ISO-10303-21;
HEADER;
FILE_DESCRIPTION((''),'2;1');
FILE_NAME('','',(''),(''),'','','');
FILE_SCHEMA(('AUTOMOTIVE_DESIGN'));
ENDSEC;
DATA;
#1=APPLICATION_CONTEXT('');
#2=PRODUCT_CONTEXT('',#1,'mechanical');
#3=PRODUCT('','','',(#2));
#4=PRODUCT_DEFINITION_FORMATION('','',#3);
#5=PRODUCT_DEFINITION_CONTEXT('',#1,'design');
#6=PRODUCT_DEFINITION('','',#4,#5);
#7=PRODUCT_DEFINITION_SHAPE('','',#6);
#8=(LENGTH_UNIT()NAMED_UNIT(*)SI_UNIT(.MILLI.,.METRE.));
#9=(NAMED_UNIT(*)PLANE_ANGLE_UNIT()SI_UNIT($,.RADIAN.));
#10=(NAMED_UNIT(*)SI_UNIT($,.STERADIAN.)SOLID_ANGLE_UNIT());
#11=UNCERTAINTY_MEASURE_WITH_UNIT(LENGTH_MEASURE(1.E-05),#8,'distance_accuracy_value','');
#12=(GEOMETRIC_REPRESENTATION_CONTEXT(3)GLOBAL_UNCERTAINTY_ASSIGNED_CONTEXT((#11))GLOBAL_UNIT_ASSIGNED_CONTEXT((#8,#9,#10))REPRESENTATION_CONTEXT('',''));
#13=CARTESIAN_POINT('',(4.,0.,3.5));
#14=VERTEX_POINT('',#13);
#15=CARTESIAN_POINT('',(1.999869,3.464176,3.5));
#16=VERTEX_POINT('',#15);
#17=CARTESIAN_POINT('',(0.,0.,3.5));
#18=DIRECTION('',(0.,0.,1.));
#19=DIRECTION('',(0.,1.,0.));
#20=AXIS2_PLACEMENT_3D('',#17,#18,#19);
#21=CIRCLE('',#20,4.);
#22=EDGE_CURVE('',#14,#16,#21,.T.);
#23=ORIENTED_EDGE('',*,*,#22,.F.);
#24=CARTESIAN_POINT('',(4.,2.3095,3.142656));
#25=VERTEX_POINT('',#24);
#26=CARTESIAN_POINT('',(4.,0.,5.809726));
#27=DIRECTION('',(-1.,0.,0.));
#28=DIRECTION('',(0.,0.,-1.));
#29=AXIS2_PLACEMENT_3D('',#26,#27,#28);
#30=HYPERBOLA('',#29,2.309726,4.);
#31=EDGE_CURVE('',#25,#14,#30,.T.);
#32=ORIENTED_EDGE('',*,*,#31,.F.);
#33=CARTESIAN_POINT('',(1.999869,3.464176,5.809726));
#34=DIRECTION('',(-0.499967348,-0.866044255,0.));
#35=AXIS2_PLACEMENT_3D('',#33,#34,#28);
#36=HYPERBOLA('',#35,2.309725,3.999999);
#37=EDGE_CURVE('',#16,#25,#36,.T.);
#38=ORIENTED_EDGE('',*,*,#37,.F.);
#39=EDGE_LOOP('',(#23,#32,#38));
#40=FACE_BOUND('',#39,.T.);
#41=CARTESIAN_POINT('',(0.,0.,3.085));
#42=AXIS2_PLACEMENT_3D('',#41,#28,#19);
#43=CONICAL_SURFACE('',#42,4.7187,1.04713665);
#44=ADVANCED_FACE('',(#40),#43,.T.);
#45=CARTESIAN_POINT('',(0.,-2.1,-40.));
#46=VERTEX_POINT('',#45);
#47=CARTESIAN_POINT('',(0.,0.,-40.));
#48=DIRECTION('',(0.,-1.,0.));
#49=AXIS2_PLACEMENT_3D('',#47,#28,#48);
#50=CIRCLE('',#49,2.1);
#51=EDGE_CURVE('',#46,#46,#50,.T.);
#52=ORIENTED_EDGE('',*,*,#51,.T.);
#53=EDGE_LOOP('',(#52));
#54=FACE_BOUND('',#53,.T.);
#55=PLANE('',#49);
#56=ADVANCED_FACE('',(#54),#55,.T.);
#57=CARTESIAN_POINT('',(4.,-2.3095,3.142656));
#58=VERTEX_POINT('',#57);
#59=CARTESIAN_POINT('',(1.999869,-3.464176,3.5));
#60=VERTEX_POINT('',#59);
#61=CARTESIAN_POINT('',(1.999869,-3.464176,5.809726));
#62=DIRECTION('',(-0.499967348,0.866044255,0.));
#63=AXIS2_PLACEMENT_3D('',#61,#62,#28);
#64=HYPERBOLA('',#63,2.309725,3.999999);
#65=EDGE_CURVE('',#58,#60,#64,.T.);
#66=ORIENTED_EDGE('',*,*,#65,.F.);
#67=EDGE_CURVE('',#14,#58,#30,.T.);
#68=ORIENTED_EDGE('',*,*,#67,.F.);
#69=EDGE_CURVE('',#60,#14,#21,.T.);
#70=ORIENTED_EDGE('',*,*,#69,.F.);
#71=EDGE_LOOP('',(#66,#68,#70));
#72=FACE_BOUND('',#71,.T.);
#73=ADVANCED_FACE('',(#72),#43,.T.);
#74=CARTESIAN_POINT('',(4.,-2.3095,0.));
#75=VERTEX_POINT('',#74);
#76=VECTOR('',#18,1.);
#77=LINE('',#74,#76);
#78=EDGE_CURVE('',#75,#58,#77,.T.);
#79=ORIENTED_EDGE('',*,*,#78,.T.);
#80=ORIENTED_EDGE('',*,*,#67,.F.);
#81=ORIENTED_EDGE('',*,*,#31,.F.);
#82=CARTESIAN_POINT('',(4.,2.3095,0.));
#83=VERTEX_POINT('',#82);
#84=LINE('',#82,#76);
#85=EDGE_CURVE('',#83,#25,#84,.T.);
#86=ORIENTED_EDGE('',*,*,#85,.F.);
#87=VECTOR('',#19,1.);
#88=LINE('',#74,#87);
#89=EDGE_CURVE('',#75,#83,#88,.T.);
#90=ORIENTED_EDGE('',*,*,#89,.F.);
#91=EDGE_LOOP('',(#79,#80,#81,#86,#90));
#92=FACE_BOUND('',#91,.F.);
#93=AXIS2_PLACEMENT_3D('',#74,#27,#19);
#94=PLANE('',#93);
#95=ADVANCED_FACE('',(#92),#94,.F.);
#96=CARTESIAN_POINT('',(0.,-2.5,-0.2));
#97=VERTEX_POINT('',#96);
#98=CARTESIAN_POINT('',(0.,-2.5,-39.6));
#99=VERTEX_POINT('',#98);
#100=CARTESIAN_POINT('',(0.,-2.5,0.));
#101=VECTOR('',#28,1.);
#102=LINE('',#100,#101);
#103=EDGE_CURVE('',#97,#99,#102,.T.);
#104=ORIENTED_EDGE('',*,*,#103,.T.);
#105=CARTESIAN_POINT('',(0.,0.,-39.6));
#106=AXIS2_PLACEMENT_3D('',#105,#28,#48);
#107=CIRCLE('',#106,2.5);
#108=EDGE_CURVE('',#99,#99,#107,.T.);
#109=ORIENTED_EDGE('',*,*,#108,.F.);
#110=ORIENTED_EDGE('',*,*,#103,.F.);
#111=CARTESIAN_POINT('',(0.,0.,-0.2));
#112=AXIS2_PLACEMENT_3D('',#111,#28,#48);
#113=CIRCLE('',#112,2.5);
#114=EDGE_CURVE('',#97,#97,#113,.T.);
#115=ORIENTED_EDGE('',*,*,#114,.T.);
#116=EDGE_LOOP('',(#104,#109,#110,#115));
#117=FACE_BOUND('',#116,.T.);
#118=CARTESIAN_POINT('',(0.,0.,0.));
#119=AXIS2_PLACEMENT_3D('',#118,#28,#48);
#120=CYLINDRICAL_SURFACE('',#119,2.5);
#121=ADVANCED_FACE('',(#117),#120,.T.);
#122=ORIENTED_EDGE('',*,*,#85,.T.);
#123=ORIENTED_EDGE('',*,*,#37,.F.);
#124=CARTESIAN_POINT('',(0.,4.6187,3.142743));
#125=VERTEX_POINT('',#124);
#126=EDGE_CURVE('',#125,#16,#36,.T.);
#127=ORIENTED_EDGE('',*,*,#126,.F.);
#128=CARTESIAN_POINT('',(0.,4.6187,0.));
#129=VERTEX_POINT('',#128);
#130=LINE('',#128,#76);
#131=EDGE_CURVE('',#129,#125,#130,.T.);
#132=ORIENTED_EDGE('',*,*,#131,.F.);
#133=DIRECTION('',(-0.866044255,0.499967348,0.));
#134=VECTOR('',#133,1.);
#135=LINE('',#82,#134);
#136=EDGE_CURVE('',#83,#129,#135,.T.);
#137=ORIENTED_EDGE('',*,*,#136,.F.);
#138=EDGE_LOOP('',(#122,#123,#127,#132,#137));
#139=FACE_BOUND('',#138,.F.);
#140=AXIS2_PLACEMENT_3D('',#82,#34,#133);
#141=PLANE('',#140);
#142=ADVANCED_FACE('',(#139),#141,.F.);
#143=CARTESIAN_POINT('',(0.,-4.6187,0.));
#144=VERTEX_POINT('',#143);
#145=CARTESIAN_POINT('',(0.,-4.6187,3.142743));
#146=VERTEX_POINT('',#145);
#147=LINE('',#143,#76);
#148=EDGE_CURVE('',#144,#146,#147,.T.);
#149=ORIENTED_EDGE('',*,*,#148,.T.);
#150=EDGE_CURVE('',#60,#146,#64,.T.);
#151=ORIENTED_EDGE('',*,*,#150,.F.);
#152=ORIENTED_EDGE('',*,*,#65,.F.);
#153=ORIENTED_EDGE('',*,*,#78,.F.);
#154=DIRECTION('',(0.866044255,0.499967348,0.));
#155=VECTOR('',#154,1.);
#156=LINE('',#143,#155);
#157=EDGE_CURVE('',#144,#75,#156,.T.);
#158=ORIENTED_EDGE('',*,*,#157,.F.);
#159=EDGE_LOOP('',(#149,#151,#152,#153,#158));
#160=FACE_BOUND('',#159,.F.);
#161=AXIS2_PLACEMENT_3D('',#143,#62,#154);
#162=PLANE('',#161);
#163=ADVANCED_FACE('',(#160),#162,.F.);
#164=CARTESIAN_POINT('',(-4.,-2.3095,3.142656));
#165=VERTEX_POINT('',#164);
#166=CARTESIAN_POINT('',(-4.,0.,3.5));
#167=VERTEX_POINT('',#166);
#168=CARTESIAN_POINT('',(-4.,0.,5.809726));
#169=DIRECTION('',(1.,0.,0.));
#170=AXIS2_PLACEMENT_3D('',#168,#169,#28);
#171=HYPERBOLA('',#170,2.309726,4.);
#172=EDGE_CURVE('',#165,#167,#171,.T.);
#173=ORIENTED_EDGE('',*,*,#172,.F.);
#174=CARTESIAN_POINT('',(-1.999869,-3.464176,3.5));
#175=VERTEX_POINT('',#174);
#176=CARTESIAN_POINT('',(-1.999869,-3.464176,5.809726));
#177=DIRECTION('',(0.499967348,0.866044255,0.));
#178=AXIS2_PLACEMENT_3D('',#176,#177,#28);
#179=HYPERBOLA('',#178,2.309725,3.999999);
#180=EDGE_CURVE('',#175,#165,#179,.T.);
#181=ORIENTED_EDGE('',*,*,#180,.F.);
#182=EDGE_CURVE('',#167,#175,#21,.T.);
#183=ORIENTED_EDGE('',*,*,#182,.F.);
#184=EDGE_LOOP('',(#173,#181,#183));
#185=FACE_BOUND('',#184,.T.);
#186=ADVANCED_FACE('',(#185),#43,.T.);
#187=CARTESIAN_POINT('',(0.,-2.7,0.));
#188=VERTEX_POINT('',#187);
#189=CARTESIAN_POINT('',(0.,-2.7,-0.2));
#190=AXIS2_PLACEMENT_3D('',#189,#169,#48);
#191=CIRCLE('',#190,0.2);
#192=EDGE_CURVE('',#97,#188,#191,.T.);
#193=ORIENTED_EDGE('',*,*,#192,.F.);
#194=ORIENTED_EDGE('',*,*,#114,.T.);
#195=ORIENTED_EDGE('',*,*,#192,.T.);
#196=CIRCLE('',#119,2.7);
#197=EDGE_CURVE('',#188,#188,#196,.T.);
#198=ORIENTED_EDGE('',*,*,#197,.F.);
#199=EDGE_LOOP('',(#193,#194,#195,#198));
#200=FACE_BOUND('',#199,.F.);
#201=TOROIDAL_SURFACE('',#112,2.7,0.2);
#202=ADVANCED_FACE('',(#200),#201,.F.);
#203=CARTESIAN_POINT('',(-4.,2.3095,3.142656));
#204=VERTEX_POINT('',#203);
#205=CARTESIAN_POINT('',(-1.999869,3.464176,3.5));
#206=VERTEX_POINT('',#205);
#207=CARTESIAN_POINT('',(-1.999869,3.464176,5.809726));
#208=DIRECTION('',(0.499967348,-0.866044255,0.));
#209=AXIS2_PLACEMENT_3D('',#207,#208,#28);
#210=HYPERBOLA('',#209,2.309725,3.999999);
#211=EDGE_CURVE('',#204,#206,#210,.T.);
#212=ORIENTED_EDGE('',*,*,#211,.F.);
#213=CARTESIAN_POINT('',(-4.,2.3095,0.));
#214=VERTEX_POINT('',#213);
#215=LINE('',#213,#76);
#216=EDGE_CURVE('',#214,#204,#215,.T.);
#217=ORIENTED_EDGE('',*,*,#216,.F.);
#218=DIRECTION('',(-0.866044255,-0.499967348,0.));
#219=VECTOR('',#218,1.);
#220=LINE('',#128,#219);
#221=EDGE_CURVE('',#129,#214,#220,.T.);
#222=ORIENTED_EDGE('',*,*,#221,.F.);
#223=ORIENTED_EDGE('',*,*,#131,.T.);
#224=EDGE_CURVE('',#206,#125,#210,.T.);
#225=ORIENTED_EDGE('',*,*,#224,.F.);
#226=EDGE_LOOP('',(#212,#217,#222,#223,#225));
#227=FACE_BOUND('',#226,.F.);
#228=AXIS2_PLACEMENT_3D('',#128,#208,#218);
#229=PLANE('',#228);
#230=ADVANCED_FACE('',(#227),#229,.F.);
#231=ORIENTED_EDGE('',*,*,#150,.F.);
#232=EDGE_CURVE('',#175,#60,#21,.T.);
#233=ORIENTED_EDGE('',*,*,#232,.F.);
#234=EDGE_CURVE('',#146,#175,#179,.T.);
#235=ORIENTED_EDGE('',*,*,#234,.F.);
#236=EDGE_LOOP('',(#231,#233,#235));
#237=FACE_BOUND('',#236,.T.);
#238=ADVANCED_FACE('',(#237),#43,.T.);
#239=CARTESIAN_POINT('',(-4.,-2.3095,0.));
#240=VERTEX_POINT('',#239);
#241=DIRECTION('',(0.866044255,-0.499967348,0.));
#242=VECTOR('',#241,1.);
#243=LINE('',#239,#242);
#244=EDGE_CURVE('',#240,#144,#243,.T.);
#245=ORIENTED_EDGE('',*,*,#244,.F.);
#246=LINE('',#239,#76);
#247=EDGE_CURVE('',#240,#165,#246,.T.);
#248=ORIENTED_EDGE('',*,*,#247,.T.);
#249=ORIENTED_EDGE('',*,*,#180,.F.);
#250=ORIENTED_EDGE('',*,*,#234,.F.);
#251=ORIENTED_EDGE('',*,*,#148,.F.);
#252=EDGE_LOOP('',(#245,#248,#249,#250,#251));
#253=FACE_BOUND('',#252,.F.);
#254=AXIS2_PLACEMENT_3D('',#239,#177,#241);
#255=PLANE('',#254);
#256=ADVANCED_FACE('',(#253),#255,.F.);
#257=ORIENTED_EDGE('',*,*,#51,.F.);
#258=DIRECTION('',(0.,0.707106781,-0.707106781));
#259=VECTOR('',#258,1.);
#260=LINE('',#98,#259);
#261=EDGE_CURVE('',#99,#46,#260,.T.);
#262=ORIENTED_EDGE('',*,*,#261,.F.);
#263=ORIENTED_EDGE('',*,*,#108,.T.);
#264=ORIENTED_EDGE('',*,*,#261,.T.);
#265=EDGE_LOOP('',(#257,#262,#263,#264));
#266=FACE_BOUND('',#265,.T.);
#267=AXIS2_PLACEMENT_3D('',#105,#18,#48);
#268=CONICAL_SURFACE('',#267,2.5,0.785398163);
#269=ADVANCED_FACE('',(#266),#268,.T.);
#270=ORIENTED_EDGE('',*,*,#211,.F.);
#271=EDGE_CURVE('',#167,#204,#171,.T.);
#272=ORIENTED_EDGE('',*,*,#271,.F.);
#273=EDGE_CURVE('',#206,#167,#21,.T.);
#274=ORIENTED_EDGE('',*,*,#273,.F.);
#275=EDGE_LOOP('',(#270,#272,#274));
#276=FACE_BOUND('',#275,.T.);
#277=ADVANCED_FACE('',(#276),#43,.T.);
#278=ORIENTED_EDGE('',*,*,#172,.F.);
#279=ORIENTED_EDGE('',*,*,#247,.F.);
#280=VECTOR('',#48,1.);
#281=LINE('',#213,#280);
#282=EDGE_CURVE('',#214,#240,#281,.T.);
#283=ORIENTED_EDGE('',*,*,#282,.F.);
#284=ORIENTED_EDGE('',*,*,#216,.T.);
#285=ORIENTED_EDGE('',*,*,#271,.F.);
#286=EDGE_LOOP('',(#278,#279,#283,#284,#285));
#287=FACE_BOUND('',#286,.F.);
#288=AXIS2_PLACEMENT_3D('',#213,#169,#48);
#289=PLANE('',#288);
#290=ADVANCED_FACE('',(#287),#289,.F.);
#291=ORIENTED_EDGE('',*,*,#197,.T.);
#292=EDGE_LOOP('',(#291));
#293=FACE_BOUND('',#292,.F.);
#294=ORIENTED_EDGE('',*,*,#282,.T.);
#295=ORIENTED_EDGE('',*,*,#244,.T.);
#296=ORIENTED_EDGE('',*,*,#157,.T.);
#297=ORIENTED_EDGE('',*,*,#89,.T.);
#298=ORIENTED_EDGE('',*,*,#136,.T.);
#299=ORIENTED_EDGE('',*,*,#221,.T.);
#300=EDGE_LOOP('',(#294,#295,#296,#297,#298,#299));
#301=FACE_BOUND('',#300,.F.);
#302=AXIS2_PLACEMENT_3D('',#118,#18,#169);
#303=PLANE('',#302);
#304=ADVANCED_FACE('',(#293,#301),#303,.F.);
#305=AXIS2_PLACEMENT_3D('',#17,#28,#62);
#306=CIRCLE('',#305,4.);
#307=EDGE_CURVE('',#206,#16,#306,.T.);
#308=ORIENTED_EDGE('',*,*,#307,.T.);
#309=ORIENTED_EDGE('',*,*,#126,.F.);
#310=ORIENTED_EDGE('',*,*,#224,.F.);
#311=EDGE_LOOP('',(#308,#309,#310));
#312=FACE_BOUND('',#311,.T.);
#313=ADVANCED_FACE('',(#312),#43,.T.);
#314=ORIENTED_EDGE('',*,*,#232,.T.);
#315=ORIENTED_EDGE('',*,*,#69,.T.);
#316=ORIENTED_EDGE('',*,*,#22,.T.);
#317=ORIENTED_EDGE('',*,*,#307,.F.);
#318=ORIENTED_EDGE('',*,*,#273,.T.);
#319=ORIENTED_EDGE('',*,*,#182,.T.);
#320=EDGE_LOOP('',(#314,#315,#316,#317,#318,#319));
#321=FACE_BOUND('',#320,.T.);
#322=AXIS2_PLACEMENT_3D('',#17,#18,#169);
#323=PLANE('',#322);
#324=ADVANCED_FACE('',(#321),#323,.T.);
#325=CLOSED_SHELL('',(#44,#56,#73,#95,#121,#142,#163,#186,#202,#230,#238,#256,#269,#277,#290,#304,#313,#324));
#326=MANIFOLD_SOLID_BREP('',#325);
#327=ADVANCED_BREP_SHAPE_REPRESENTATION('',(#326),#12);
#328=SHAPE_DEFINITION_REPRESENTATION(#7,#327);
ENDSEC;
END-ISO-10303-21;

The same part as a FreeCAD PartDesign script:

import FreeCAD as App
import Part
import Sketcher
Q = App.Units.Quantity


def edges_at(feature, points):
    """Names of the edges that pass closest to the given points."""
    edges = feature.Shape.Edges
    near = lambda p: min(range(len(edges)), key=lambda i: edges[i].distToShape(Part.Vertex(*p))[0])
    return sorted({f"Edge{near(p) + 1}" for p in points})

doc = App.newDocument("Part")
body = doc.addObject("PartDesign::Body", "Body")

# Sketch on XY plane
sketch1 = body.newObject("Sketcher::SketchObject", "Sketch")
sketch1.AttachmentSupport = (doc.getObject("XY_Plane"), [""])
sketch1.MapMode = "FlatFace"
sketch1.addGeometry([
    Part.LineSegment(App.Vector(0, 4.6, 0), App.Vector(-4, 2.3, 0)),  # 0
    Part.LineSegment(App.Vector(-4, 2.3, 0), App.Vector(-4, -2.3, 0)),  # 1
    Part.LineSegment(App.Vector(-4, -2.3, 0), App.Vector(0, -4.6, 0)),  # 2
    Part.LineSegment(App.Vector(0, -4.6, 0), App.Vector(4, -2.3, 0)),  # 3
    Part.LineSegment(App.Vector(4, -2.3, 0), App.Vector(4, 2.3, 0)),  # 4
    Part.LineSegment(App.Vector(4, 2.3, 0), App.Vector(0, 4.6, 0)),  # 5
], False)
sketch1.addConstraint([
    Sketcher.Constraint("Coincident", 0, 2, 1, 1),
    Sketcher.Constraint("Coincident", 1, 2, 2, 1),
    Sketcher.Constraint("Coincident", 2, 2, 3, 1),
    Sketcher.Constraint("Coincident", 3, 2, 4, 1),
    Sketcher.Constraint("Coincident", 4, 2, 5, 1),
    Sketcher.Constraint("Coincident", 5, 2, 0, 1),
    Sketcher.Constraint("Vertical", 1),
    Sketcher.Constraint("Vertical", 4),
    Sketcher.Constraint("Symmetric", 0, 2, 3, 2, -1, 1),
    Sketcher.Constraint("Symmetric", 2, 2, 5, 2, -1, 1),
    Sketcher.Constraint("PointOnObject", 2, 2, -2),
    Sketcher.Constraint("Parallel", 2, 5),
    Sketcher.Constraint("Horizontal", 1, 2, 3, 2),
    Sketcher.Constraint("DistanceX", 1, 2, 3, 2, Q("8 mm")),
    Sketcher.Constraint("DistanceY", 1, 2, 1, 1, Q("4.619 mm")),
    Sketcher.Constraint("Distance", 0, Q("4.6187 mm")),
])
pad1 = body.newObject("PartDesign::Pad", "Pad")
pad1.Profile = sketch1
pad1.Length = 3.5

# Sketch on YZ plane
sketch2 = body.newObject("Sketcher::SketchObject", "Sketch001")
sketch2.AttachmentSupport = (doc.getObject("YZ_Plane"), [""])
sketch2.MapMode = "FlatFace"
sketch2.addGeometry([
    Part.LineSegment(App.Vector(4, 3.5, 0), App.Vector(4.72, 3.08, 0)),
    Part.LineSegment(App.Vector(4.72, 3.08, 0), App.Vector(4.72, 3.5, 0)),
    Part.LineSegment(App.Vector(4.72, 3.5, 0), App.Vector(4, 3.5, 0)),
], False)
sketch2.addConstraint([
    Sketcher.Constraint("Coincident", 0, 2, 1, 1),
    Sketcher.Constraint("Coincident", 1, 2, 2, 1),
    Sketcher.Constraint("Coincident", 2, 2, 0, 1),
    Sketcher.Constraint("Vertical", 1),
    Sketcher.Constraint("Horizontal", 2),
    Sketcher.Constraint("DistanceX", -1, 1, 2, 2, Q("4 mm")),
    Sketcher.Constraint("DistanceY", -1, 1, 1, 2, Q("3.5 mm")),
    Sketcher.Constraint("Distance", 0, Q("0.83 mm")),
    Sketcher.Constraint("DistanceY", 1, 1, 1, 2, Q("0.415 mm")),
])
groove = body.newObject("PartDesign::Groove", "Groove")
groove.Profile = sketch2
groove.ReferenceAxis = (sketch2, ["V_Axis"])
groove.Angle = 360

# Sketch on YZ plane
sketch3 = body.newObject("Sketcher::SketchObject", "Sketch002")
sketch3.AttachmentSupport = (doc.getObject("YZ_Plane"), [""])
sketch3.MapMode = "FlatFace"
sketch3.addGeometry([
    Part.LineSegment(App.Vector(-2.5, -40, 0), App.Vector(0, -40, 0)),
    Part.LineSegment(App.Vector(0, -40, 0), App.Vector(0, 0, 0)),
    Part.LineSegment(App.Vector(0, 0, 0), App.Vector(-2.5, 0, 0)),
    Part.LineSegment(App.Vector(-2.5, 0, 0), App.Vector(-2.5, -40, 0)),
], False)
sketch3.addConstraint([
    Sketcher.Constraint("Coincident", 0, 2, 1, 1),
    Sketcher.Constraint("Coincident", 1, 2, 2, 1),
    Sketcher.Constraint("Coincident", 2, 2, 3, 1),
    Sketcher.Constraint("Coincident", 3, 2, 0, 1),
    Sketcher.Constraint("Horizontal", 0),
    Sketcher.Constraint("Vertical", 1),
    Sketcher.Constraint("Horizontal", 2),
    Sketcher.Constraint("Vertical", 3),
    Sketcher.Constraint("Coincident", 1, 2, -1, 1),
    Sketcher.Constraint("DistanceY", 1, 1, 1, 2, Q("40 mm")),
    Sketcher.Constraint("DistanceX", 0, 1, 0, 2, Q("2.5 mm")),
])
revolution = body.newObject("PartDesign::Revolution", "Revolution")
revolution.Profile = sketch3
revolution.ReferenceAxis = (sketch3, ["V_Axis"])
revolution.Angle = 360
doc.recompute()

chamfer = body.newObject("PartDesign::Chamfer", "Chamfer")
chamfer.Base = (revolution, edges_at(revolution, [(0, 2.5, -40)]))
chamfer.Size = 0.4
doc.recompute()

fillet = body.newObject("PartDesign::Fillet", "Fillet")
fillet.Base = (chamfer, edges_at(chamfer, [(0, 2.5, 0)]))
fillet.Radius = 0.2

doc.recompute()
